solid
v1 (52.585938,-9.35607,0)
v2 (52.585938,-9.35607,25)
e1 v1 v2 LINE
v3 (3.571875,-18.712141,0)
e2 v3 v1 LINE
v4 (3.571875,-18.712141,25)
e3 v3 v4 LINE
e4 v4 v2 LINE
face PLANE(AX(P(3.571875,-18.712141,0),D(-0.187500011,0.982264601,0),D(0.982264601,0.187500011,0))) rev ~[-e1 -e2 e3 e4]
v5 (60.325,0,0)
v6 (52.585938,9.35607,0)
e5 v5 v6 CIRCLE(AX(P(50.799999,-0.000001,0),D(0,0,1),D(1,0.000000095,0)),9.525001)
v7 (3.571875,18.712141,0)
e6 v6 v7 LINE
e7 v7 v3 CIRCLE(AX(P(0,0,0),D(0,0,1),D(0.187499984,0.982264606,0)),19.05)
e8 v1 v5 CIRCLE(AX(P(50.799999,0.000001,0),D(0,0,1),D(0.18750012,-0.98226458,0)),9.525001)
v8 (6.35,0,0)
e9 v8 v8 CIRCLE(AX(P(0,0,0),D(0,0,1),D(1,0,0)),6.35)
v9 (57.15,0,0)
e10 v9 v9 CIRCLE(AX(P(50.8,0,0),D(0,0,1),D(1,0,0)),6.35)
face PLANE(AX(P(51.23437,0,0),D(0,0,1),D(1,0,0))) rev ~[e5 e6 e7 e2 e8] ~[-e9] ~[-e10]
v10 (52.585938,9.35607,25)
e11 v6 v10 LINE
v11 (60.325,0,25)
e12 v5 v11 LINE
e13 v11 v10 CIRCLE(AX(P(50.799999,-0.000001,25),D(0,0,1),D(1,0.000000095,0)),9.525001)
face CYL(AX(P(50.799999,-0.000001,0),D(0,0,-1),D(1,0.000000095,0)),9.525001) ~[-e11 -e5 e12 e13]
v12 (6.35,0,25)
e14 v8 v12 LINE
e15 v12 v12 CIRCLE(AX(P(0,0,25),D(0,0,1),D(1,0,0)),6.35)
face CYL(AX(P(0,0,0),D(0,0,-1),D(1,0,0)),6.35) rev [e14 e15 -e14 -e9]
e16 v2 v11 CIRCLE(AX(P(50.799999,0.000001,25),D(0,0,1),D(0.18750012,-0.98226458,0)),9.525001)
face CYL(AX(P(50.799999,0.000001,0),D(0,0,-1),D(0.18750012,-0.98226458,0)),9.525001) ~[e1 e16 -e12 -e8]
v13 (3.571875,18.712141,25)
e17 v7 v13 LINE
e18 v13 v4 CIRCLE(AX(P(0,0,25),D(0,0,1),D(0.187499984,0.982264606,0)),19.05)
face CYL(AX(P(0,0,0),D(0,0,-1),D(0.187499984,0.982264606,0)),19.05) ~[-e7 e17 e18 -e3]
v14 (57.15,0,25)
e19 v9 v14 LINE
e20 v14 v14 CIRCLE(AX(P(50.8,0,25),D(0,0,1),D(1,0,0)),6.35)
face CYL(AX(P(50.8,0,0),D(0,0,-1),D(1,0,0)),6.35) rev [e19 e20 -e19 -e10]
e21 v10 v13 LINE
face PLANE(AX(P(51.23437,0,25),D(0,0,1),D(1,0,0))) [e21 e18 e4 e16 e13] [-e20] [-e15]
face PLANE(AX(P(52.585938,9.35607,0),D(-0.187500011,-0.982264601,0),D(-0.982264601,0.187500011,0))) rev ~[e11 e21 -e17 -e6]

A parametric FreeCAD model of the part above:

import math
import FreeCAD as App
import Part
import Sketcher
Q = App.Units.Quantity

doc = App.newDocument("Part")
body = doc.addObject("PartDesign::Body", "Body")

sketch1 = doc.addObject("Sketcher::SketchObject", "Sketch")
body.addObject(sketch1)
sketch1.AttachmentSupport = (doc.XY_Plane, [""])
sketch1.MapMode = "FlatFace"
sketch1.addGeometry(Part.ArcOfCircle(Part.Circle(App.Vector(51, 0, 0), App.Vector(0, 0, 1), 10), math.radians(0), math.radians(79)), False)
sketch1.addGeometry(Part.LineSegment(App.Vector(53, 9, 0), App.Vector(4, 19, 0)), False)
sketch1.addGeometry(Part.ArcOfCircle(Part.Circle(App.Vector(0, 0, 0), App.Vector(0, 0, 1), 19), math.radians(79), math.radians(281)), False)
sketch1.addGeometry(Part.LineSegment(App.Vector(4, -19, 0), App.Vector(53, -9, 0)), False)
sketch1.addGeometry(Part.ArcOfCircle(Part.Circle(App.Vector(51, 0, 0), App.Vector(0, 0, 1), 10), math.radians(-79), math.radians(0)), False)
sketch1.addGeometry(Part.Circle(App.Vector(0, 0, 0), App.Vector(0, 0, 1), 6), False)
sketch1.addGeometry(Part.Circle(App.Vector(51, 0, 0), App.Vector(0, 0, 1), 6), False)
sketch1.addConstraint(Sketcher.Constraint("Tangent", 0, 2, 1, 1))
sketch1.addConstraint(Sketcher.Constraint("Tangent", 1, 2, 2, 1))
sketch1.addConstraint(Sketcher.Constraint("Tangent", 2, 2, 3, 1))
sketch1.addConstraint(Sketcher.Constraint("Tangent", 3, 2, 4, 1))
sketch1.addConstraint(Sketcher.Constraint("Tangent", 4, 2, 0, 1))
sketch1.addConstraint(Sketcher.Constraint("Coincident", 2, 3, -1, 1))
sketch1.addConstraint(Sketcher.Constraint("Coincident", 5, 3, -1, 1))
sketch1.addConstraint(Sketcher.Constraint("Coincident", 6, 3, 0, 3))
sketch1.addConstraint(Sketcher.Constraint("Equal", 0, 4))
sketch1.addConstraint(Sketcher.Constraint("Equal", 5, 6))
sketch1.addConstraint(Sketcher.Constraint("PointOnObject", 0, 3, -1))
sketch1.addConstraint(Sketcher.Constraint("PointOnObject", 4, 2, -1))
sketch1.addConstraint(Sketcher.Constraint("Diameter", 5, Q("0.5 in")))
sketch1.addConstraint(Sketcher.Constraint("Radius", 2, Q("0.75 in")))
sketch1.addConstraint(Sketcher.Constraint("DistanceX", -1, 1, 0, 3, Q("2 in")))
sketch1.addConstraint(Sketcher.Constraint("Radius", 0, Q("0.375 in")))
pad1 = doc.addObject("PartDesign::Pad", "Pad")
body.addObject(pad1)
pad1.Profile = sketch1
pad1.Length = 25

doc.recompute()
